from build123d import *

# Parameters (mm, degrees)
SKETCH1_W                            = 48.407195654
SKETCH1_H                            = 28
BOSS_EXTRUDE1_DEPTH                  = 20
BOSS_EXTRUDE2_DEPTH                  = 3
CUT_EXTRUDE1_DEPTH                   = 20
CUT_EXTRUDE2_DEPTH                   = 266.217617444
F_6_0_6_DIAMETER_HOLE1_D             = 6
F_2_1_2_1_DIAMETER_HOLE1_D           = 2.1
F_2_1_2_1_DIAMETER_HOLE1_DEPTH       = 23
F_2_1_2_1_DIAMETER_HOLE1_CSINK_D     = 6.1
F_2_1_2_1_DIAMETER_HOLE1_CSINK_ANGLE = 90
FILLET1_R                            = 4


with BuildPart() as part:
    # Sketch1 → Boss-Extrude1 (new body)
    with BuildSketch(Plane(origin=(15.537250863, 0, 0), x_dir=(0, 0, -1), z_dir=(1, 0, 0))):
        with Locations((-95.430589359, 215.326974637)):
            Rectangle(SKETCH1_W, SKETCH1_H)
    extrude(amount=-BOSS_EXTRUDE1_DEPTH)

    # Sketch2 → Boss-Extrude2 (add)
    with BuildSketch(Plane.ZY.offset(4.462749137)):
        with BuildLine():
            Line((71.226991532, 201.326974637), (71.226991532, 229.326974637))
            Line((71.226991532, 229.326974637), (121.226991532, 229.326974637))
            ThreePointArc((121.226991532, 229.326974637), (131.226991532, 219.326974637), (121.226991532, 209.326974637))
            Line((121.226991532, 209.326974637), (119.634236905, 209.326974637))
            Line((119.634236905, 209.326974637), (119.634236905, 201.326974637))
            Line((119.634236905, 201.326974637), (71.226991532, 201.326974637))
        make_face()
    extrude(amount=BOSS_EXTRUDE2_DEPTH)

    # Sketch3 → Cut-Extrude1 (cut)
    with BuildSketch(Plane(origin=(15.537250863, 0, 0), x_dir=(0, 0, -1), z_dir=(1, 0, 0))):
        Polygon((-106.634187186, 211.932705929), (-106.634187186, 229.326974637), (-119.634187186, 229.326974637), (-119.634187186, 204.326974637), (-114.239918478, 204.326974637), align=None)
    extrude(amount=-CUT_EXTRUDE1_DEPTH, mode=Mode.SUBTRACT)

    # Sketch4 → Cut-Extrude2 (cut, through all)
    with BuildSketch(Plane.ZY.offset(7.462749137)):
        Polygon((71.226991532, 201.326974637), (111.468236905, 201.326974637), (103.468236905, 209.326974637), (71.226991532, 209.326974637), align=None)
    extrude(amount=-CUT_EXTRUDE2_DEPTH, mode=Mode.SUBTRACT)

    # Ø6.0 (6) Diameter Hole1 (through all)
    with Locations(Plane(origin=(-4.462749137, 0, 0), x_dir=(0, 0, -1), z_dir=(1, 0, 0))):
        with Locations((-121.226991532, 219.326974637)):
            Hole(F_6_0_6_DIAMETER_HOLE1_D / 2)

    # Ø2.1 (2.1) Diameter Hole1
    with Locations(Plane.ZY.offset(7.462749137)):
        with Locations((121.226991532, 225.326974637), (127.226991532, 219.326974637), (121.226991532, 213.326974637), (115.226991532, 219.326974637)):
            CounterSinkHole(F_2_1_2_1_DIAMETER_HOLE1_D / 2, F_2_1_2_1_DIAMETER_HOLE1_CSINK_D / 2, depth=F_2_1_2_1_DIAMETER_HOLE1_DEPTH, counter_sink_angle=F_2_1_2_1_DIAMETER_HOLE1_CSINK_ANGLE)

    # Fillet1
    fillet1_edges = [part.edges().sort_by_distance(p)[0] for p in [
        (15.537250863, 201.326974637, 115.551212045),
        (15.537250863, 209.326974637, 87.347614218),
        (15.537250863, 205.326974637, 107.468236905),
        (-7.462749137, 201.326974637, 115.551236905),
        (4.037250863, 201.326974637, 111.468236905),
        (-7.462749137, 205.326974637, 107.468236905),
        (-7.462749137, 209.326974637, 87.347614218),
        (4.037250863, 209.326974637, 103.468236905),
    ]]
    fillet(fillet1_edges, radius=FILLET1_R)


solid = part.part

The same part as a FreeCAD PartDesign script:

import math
import FreeCAD as App
import Part
import Sketcher

V = App.Vector
Q = App.Units.Quantity


def edges_at(feature, points):
    """Names of the edges that pass closest to the given points."""
    edges = feature.Shape.Edges
    near = lambda p: min(range(len(edges)), key=lambda i: edges[i].distToShape(Part.Vertex(*p))[0])
    return sorted({f"Edge{near(p) + 1}" for p in points})

doc = App.newDocument("Part")
params = doc.addObject("Spreadsheet::Sheet", "Params")
for row, (alias, value) in enumerate([
    ("sketch1_width", "28 mm"),
    ("pad1_length", "20 mm"),
    ("sketch2_radius", "10 mm"),
    ("sketch2_width", "28 mm"),
    ("sketch2_height", "50 mm"),
    ("pad2_length", "3 mm"),
    ("sketch3_width", "25 mm"),
    ("sketch3_height", "13 mm"),
    ("pocket1_length", "20 mm"),
    ("sketch4_width", "8 mm"),
    ("sketch5_diameter", "6 mm"),
    ("hole_diameter", "6 mm"),
    ("sketch6_diameter", "2.1 mm"),
    ("hole2_diameter", "2.1 mm"),
    ("hole2_depth", "23 mm"),
    ("hole2_csink_diameter", "6.1 mm"),
    ("fillet_radius", "4 mm"),
], start=1):
    params.set(f"A{row}", alias)
    params.set(f"B{row}", "=" + value)
    params.setAlias(f"B{row}", alias)

body = doc.addObject("PartDesign::Body", "Body")

# Sketch on YZ plane
sketch1 = body.newObject("Sketcher::SketchObject", "Sketch")
sketch1.AttachmentSupport = (doc.getObject("YZ_Plane"), [""])
sketch1.MapMode = "FlatFace"
sketch1.AttachmentOffset = App.Placement(V(0, 0, 15.537251), App.Rotation())
sketch1.addGeometry(Part.LineSegment(V(229, 120, 0), V(201, 120, 0)), False)
sketch1.addGeometry(Part.LineSegment(V(201, 120, 0), V(201, 71, 0)), False)
sketch1.addGeometry(Part.LineSegment(V(201, 71, 0), V(229, 71, 0)), False)
sketch1.addGeometry(Part.LineSegment(V(229, 71, 0), V(229, 120, 0)), False)
sketch1.addConstraint(Sketcher.Constraint("Coincident", 0, 2, 1, 1))
sketch1.addConstraint(Sketcher.Constraint("Coincident", 1, 2, 2, 1))
sketch1.addConstraint(Sketcher.Constraint("Coincident", 2, 2, 3, 1))
sketch1.addConstraint(Sketcher.Constraint("Coincident", 3, 2, 0, 1))
sketch1.addConstraint(Sketcher.Constraint("Horizontal", 0))
sketch1.addConstraint(Sketcher.Constraint("Vertical", 1))
sketch1.addConstraint(Sketcher.Constraint("Horizontal", 2))
sketch1.addConstraint(Sketcher.Constraint("Vertical", 3))
sketch1.addConstraint(Sketcher.Constraint("DistanceX", 0, 2, 0, 1, 28.0))
sketch1.addConstraint(Sketcher.Constraint("DistanceY", 1, 2, 1, 1, 48.407196))
sketch1.addConstraint(Sketcher.Constraint("DistanceY", -1, 1, 1, 2, 71.226992))
sketch1.addConstraint(Sketcher.Constraint("DistanceX", -1, 1, 0, 2, 201.326975))
sketch1.setExpression("Constraints[8]", "Params.sketch1_width")
pad1 = body.newObject("PartDesign::Pad", "Pad")
pad1.Profile = sketch1
pad1.setExpression("Length", "Params.pad1_length")
pad1.Reversed = True

# Sketch on YZ plane
sketch2 = body.newObject("Sketcher::SketchObject", "Sketch001")
sketch2.AttachmentSupport = (doc.getObject("YZ_Plane"), [""])
sketch2.MapMode = "FlatFace"
sketch2.AttachmentOffset = App.Placement(V(0, 0, -4.462749), App.Rotation())
sketch2.addGeometry(Part.LineSegment(V(229.3, 71.2, 0), V(201.3, 71.2, 0)), False)
sketch2.addGeometry(Part.LineSegment(V(201.3, 71.2, 0), V(201.3, 119.6, 0)), False)
sketch2.addGeometry(Part.LineSegment(V(201.3, 119.6, 0), V(209.3, 119.6, 0)), False)
sketch2.addGeometry(Part.LineSegment(V(209.3, 119.6, 0), V(209.3, 121.2, 0)), False)
sketch2.addGeometry(Part.ArcOfCircle(Part.Circle(V(219.3, 121.2, 0), V(0, 0, 1), 10), math.radians(0), math.radians(180)), False)
sketch2.addGeometry(Part.LineSegment(V(229.3, 121.2, 0), V(229.3, 71.2, 0)), False)
sketch2.addConstraint(Sketcher.Constraint("Coincident", 0, 2, 1, 1))
sketch2.addConstraint(Sketcher.Constraint("Coincident", 1, 2, 2, 1))
sketch2.addConstraint(Sketcher.Constraint("Coincident", 2, 2, 3, 1))
sketch2.addConstraint(Sketcher.Constraint("Tangent", 3, 2, 4, 2))
sketch2.addConstraint(Sketcher.Constraint("Tangent", 4, 1, 5, 1))
sketch2.addConstraint(Sketcher.Constraint("Coincident", 5, 2, 0, 1))
sketch2.addConstraint(Sketcher.Constraint("Horizontal", 0))
sketch2.addConstraint(Sketcher.Constraint("Vertical", 1))
sketch2.addConstraint(Sketcher.Constraint("Horizontal", 2))
sketch2.addConstraint(Sketcher.Constraint("Vertical", 3))
sketch2.addConstraint(Sketcher.Constraint("Vertical", 5))
sketch2.addConstraint(Sketcher.Constraint("Radius", 4, 10.0))
sketch2.addConstraint(Sketcher.Constraint("DistanceX", 0, 2, 0, 1, 28.0))
sketch2.addConstraint(Sketcher.Constraint("DistanceY", 5, 2, 5, 1, 50.0))
sketch2.addConstraint(Sketcher.Constraint("DistanceY", 1, 1, 1, 2, 48.407245))
sketch2.addConstraint(Sketcher.Constraint("DistanceY", -1, 1, 4, 3, 121.226992))
sketch2.addConstraint(Sketcher.Constraint("DistanceX", -1, 1, 4, 3, 219.326975))
sketch2.setExpression("Constraints[11]", "Params.sketch2_radius")
sketch2.setExpression("Constraints[12]", "Params.sketch2_width")
sketch2.setExpression("Constraints[13]", "Params.sketch2_height")
pad2 = body.newObject("PartDesign::Pad", "Pad001")
pad2.Profile = sketch2
pad2.setExpression("Length", "Params.pad2_length")
pad2.Reversed = True

# Sketch on YZ plane
sketch3 = body.newObject("Sketcher::SketchObject", "Sketch002")
sketch3.AttachmentSupport = (doc.getObject("YZ_Plane"), [""])
sketch3.MapMode = "FlatFace"
sketch3.AttachmentOffset = App.Placement(V(0, 0, 15.537251), App.Rotation())
sketch3.addGeometry(Part.LineSegment(V(212, 107, 0), V(229, 107, 0)), False)
sketch3.addGeometry(Part.LineSegment(V(229, 107, 0), V(229, 120, 0)), False)
sketch3.addGeometry(Part.LineSegment(V(229, 120, 0), V(204, 120, 0)), False)
sketch3.addGeometry(Part.LineSegment(V(204, 120, 0), V(204, 114, 0)), False)
sketch3.addGeometry(Part.LineSegment(V(204, 114, 0), V(212, 107, 0)), False)
sketch3.addConstraint(Sketcher.Constraint("Coincident", 0, 2, 1, 1))
sketch3.addConstraint(Sketcher.Constraint("Coincident", 1, 2, 2, 1))
sketch3.addConstraint(Sketcher.Constraint("Coincident", 2, 2, 3, 1))
sketch3.addConstraint(Sketcher.Constraint("Coincident", 3, 2, 4, 1))
sketch3.addConstraint(Sketcher.Constraint("Coincident", 4, 2, 0, 1))
sketch3.addConstraint(Sketcher.Constraint("Horizontal", 0))
sketch3.addConstraint(Sketcher.Constraint("Vertical", 1))
sketch3.addConstraint(Sketcher.Constraint("Horizontal", 2))
sketch3.addConstraint(Sketcher.Constraint("Vertical", 3))
sketch3.addConstraint(Sketcher.Constraint("DistanceX", 2, 2, 2, 1, 25.0))
sketch3.addConstraint(Sketcher.Constraint("DistanceY", 1, 1, 1, 2, 13.0))
sketch3.addConstraint(Sketcher.Constraint("Angle", 4, Q("-45 deg")))
sketch3.addConstraint(Sketcher.Constraint("DistanceX", 0, 1, 0, 2, 17.394269))
sketch3.addConstraint(Sketcher.Constraint("DistanceY", -1, 1, 3, 2, 114.239918))
sketch3.addConstraint(Sketcher.Constraint("DistanceX", -1, 1, 0, 2, 229.326975))
sketch3.setExpression("Constraints[9]", "Params.sketch3_width")
sketch3.setExpression("Constraints[10]", "Params.sketch3_height")
pocket1 = body.newObject("PartDesign::Pocket", "Pocket")
pocket1.Profile = sketch3
pocket1.setExpression("Length", "Params.pocket1_length")

# Sketch on YZ plane
sketch4 = body.newObject("Sketcher::SketchObject", "Sketch003")
sketch4.AttachmentSupport = (doc.getObject("YZ_Plane"), [""])
sketch4.MapMode = "FlatFace"
sketch4.AttachmentOffset = App.Placement(V(0, 0, -7.462749), App.Rotation())
sketch4.addGeometry(Part.LineSegment(V(201, 71, 0), V(201, 111, 0)), False)
sketch4.addGeometry(Part.LineSegment(V(201, 111, 0), V(209, 103, 0)), False)
sketch4.addGeometry(Part.LineSegment(V(209, 103, 0), V(209, 71, 0)), False)
sketch4.addGeometry(Part.LineSegment(V(209, 71, 0), V(201, 71, 0)), False)
sketch4.addConstraint(Sketcher.Constraint("Coincident", 0, 2, 1, 1))
sketch4.addConstraint(Sketcher.Constraint("Coincident", 1, 2, 2, 1))
sketch4.addConstraint(Sketcher.Constraint("Coincident", 2, 2, 3, 1))
sketch4.addConstraint(Sketcher.Constraint("Coincident", 3, 2, 0, 1))
sketch4.addConstraint(Sketcher.Constraint("Vertical", 0))
sketch4.addConstraint(Sketcher.Constraint("Vertical", 2))
sketch4.addConstraint(Sketcher.Constraint("Horizontal", 3))
sketch4.addConstraint(Sketcher.Constraint("DistanceX", 3, 2, 3, 1, 8.0))
sketch4.addConstraint(Sketcher.Constraint("Angle", 1, Q("-45 deg")))
sketch4.addConstraint(Sketcher.Constraint("DistanceY", 0, 1, 0, 2, 40.241245))
sketch4.addConstraint(Sketcher.Constraint("DistanceY", -1, 1, 2, 2, 71.226992))
sketch4.addConstraint(Sketcher.Constraint("DistanceX", -1, 1, 0, 2, 201.326975))
sketch4.setExpression("Constraints[7]", "Params.sketch4_width")
pocket2 = body.newObject("PartDesign::Pocket", "Pocket001")
pocket2.Profile = sketch4
pocket2.Type = "ThroughAll"
pocket2.Reversed = True

# Sketch on YZ plane
sketch5 = body.newObject("Sketcher::SketchObject", "Sketch004")
sketch5.AttachmentSupport = (doc.getObject("YZ_Plane"), [""])
sketch5.MapMode = "FlatFace"
sketch5.AttachmentOffset = App.Placement(V(0, 0, -4.462749), App.Rotation())
sketch5.addGeometry(Part.Circle(V(219.3, 121.2, 0), V(0, 0, 1), 3), False)
sketch5.addConstraint(Sketcher.Constraint("Diameter", 0, 6.0))
sketch5.addConstraint(Sketcher.Constraint("DistanceY", -1, 1, 0, 3, 121.226992))
sketch5.addConstraint(Sketcher.Constraint("DistanceX", -1, 1, 0, 3, 219.326975))
sketch5.setExpression("Constraints[0]", "Params.sketch5_diameter")
doc.recompute()
hole = body.newObject("PartDesign::Hole", "Hole")
hole.Profile = sketch5
hole.ThreadType = "None"
hole.setExpression("Diameter", "Params.hole_diameter")
hole.DepthType = "ThroughAll"

# Sketch on YZ plane
sketch6 = body.newObject("Sketcher::SketchObject", "Sketch005")
sketch6.AttachmentSupport = (doc.getObject("YZ_Plane"), [""])
sketch6.MapMode = "FlatFace"
sketch6.AttachmentOffset = App.Placement(V(0, 0, -7.462749), App.Rotation())
sketch6.addGeometry(Part.Circle(V(225.3, 121.2, 0), V(0, 0, 1), 1.1), False)
sketch6.addGeometry(Part.Circle(V(219.3, 127.2, 0), V(0, 0, 1), 1.1), False)
sketch6.addGeometry(Part.Circle(V(213.3, 121.2, 0), V(0, 0, 1), 1.1), False)
sketch6.addGeometry(Part.Circle(V(219.3, 115.2, 0), V(0, 0, 1), 1.1), False)
sketch6.addConstraint(Sketcher.Constraint("Equal", 0, 1))
sketch6.addConstraint(Sketcher.Constraint("Equal", 1, 2))
sketch6.addConstraint(Sketcher.Constraint("Equal", 2, 3))
sketch6.addConstraint(Sketcher.Constraint("Horizontal", 0, 3, 2, 3))
sketch6.addConstraint(Sketcher.Constraint("Vertical", 1, 3, 3, 3))
sketch6.addConstraint(Sketcher.Constraint("Diameter", 0, 2.1))
sketch6.addConstraint(Sketcher.Constraint("DistanceX", 1, 3, 0, 3, 6.0))
sketch6.addConstraint(Sketcher.Constraint("DistanceY", 0, 3, 1, 3, 6.0))
sketch6.addConstraint(Sketcher.Constraint("DistanceX", 2, 3, 1, 3, 6.0))
sketch6.addConstraint(Sketcher.Constraint("DistanceY", 3, 3, 0, 3, 6.0))
sketch6.addConstraint(Sketcher.Constraint("DistanceY", -1, 1, 0, 3, 121.226992))
sketch6.addConstraint(Sketcher.Constraint("DistanceX", -1, 1, 0, 3, 225.326975))
sketch6.setExpression("Constraints[5]", "Params.sketch6_diameter")
doc.recompute()
hole2 = body.newObject("PartDesign::Hole", "Hole001")
hole2.Profile = sketch6
hole2.ThreadType = "None"
hole2.setExpression("Diameter", "Params.hole2_diameter")
hole2.DepthType = "Dimension"
hole2.setExpression("Depth", "Params.hole2_depth")
hole2.DrillPoint = "Flat"
hole2.HoleCutType = "Countersink"
hole2.setExpression("HoleCutDiameter", "Params.hole2_csink_diameter")
hole2.HoleCutCountersinkAngle = 90
hole2.Reversed = True
doc.recompute()

fillet = body.newObject("PartDesign::Fillet", "Fillet")
fillet.Base = (hole2, edges_at(hole2, [
    (15.537, 201.327, 115.551),
    (15.537, 209.327, 87.348),
    (15.537, 205.327, 107.468),
    (-7.463, 201.327, 115.551),
    (4.037, 201.327, 111.468),
    (-7.463, 205.327, 107.468),
    (-7.463, 209.327, 87.348),
    (4.037, 209.327, 103.468),
]))
fillet.setExpression("Radius", "Params.fillet_radius")

doc.recompute()
